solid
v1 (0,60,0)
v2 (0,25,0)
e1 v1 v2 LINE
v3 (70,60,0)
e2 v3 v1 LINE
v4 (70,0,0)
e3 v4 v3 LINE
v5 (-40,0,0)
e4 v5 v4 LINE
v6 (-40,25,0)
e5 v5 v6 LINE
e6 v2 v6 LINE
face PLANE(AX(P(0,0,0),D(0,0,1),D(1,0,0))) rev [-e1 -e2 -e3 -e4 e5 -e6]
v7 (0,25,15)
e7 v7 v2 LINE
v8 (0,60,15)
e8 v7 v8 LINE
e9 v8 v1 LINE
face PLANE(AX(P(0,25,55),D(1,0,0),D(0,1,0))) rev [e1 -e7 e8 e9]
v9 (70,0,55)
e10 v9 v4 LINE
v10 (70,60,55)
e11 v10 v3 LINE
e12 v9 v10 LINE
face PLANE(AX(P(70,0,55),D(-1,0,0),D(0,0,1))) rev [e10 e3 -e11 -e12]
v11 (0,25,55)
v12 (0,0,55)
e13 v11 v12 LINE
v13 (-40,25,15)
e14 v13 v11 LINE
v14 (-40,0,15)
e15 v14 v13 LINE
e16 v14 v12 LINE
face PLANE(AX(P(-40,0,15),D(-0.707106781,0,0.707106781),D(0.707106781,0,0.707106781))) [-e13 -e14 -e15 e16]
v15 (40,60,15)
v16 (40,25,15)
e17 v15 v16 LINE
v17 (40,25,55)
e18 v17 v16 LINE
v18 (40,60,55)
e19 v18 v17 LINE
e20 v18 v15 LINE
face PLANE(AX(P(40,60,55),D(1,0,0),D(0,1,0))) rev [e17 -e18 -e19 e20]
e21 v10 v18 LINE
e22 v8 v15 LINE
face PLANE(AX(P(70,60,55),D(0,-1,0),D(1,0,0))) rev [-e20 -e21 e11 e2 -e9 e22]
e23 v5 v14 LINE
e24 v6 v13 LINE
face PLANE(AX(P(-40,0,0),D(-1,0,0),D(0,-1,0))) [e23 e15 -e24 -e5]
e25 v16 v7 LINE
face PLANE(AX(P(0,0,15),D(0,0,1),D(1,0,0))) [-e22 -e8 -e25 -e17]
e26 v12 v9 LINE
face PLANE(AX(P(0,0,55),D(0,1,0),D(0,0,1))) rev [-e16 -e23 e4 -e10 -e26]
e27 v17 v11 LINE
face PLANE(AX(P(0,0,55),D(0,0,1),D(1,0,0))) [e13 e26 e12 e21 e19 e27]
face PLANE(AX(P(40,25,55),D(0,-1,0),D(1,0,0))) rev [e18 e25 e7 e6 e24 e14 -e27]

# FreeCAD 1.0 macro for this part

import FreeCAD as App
import Part
import Sketcher

V = App.Vector

doc = App.newDocument("Part")
body = doc.addObject("PartDesign::Body", "Body")

# Sketch on XY plane
sketch1 = body.newObject("Sketcher::SketchObject", "Sketch")
sketch1.AttachmentSupport = (doc.getObject("XY_Plane"), [""])
sketch1.MapMode = "FlatFace"
sketch1.addGeometry([
    Part.LineSegment(V(0, 0, 0), V(70, 0, 0)),  # 0
    Part.LineSegment(V(70, 0, 0), V(70, 60, 0)),  # 1
    Part.LineSegment(V(70, 60, 0), V(40, 60, 0)),  # 2
    Part.LineSegment(V(40, 60, 0), V(40, 25, 0)),  # 3
    Part.LineSegment(V(40, 25, 0), V(0, 25, 0)),  # 4
    Part.LineSegment(V(0, 25, 0), V(0, 0, 0)),  # 5
], False)
sketch1.addConstraint([
    Sketcher.Constraint("Coincident", 0, 2, 1, 1),
    Sketcher.Constraint("Coincident", 1, 2, 2, 1),
    Sketcher.Constraint("Coincident", 2, 2, 3, 1),
    Sketcher.Constraint("Coincident", 3, 2, 4, 1),
    Sketcher.Constraint("Coincident", 4, 2, 5, 1),
    Sketcher.Constraint("Coincident", 5, 2, 0, 1),
    Sketcher.Constraint("Horizontal", 0),
    Sketcher.Constraint("Vertical", 1),
    Sketcher.Constraint("Horizontal", 2),
    Sketcher.Constraint("Vertical", 3),
    Sketcher.Constraint("Horizontal", 4),
    Sketcher.Constraint("Vertical", 5),
    Sketcher.Constraint("Coincident", 5, 2, -1, 1),
    Sketcher.Constraint("DistanceX", 0, 1, 0, 2, 70.0),
    Sketcher.Constraint("DistanceX", 2, 2, 2, 1, 30.0),
    Sketcher.Constraint("DistanceY", 1, 1, 1, 2, 60.0),
    Sketcher.Constraint("DistanceY", 3, 2, 3, 1, 35.0),
])
pad1 = body.newObject("PartDesign::Pad", "Pad")
pad1.Profile = sketch1
pad1.Length = 55

# Sketch on XY plane
sketch2 = body.newObject("Sketcher::SketchObject", "Sketch001")
sketch2.AttachmentSupport = (doc.getObject("XY_Plane"), [""])
sketch2.MapMode = "FlatFace"
sketch2.addGeometry([
    Part.LineSegment(V(40, 60, 0), V(40, 25, 0)),
    Part.LineSegment(V(40, 25, 0), V(0, 25, 0)),
    Part.LineSegment(V(0, 25, 0), V(0, 60, 0)),
    Part.LineSegment(V(0, 60, 0), V(40, 60, 0)),
], False)
sketch2.addConstraint([
    Sketcher.Constraint("Coincident", 0, 2, 1, 1),
    Sketcher.Constraint("Coincident", 1, 2, 2, 1),
    Sketcher.Constraint("Coincident", 2, 2, 3, 1),
    Sketcher.Constraint("Coincident", 3, 2, 0, 1),
    Sketcher.Constraint("Vertical", 0),
    Sketcher.Constraint("Horizontal", 1),
    Sketcher.Constraint("Vertical", 2),
    Sketcher.Constraint("Horizontal", 3),
    Sketcher.Constraint("PointOnObject", 1, 2, -2),
    Sketcher.Constraint("DistanceX", 1, 2, 1, 1, 40.0),
    Sketcher.Constraint("DistanceY", 0, 2, 0, 1, 35.0),
    Sketcher.Constraint("DistanceY", -1, 1, 0, 2, 25.0),
])
pad2 = body.newObject("PartDesign::Pad", "Pad001")
pad2.Profile = sketch2
pad2.Length = 15

# Sketch on XZ plane
sketch3 = body.newObject("Sketcher::SketchObject", "Sketch002")
sketch3.AttachmentSupport = (doc.getObject("XZ_Plane"), [""])
sketch3.MapMode = "FlatFace"
sketch3.AttachmentOffset = App.Placement(V(0, 0, -25), App.Rotation())
sketch3.addGeometry([
    Part.LineSegment(V(0, 0, 0), V(-40, 0, 0)),
    Part.LineSegment(V(-40, 0, 0), V(-40, 15, 0)),
    Part.LineSegment(V(-40, 15, 0), V(0, 55, 0)),
    Part.LineSegment(V(0, 55, 0), V(0, 0, 0)),
], False)
sketch3.addConstraint([
    Sketcher.Constraint("Coincident", 0, 2, 1, 1),
    Sketcher.Constraint("Coincident", 1, 2, 2, 1),
    Sketcher.Constraint("Coincident", 2, 2, 3, 1),
    Sketcher.Constraint("Coincident", 3, 2, 0, 1),
    Sketcher.Constraint("Horizontal", 0),
    Sketcher.Constraint("Vertical", 1),
    Sketcher.Constraint("Vertical", 3),
    Sketcher.Constraint("Coincident", 3, 2, -1, 1),
    Sketcher.Constraint("DistanceX", 0, 2, 0, 1, 40.0),
    Sketcher.Constraint("DistanceY", 1, 1, 1, 2, 15.0),
    Sketcher.Constraint("DistanceY", 3, 2, 3, 1, 55.0),
])
pad3 = body.newObject("PartDesign::Pad", "Pad002")
pad3.Profile = sketch3
pad3.Length = 25

doc.recompute()
